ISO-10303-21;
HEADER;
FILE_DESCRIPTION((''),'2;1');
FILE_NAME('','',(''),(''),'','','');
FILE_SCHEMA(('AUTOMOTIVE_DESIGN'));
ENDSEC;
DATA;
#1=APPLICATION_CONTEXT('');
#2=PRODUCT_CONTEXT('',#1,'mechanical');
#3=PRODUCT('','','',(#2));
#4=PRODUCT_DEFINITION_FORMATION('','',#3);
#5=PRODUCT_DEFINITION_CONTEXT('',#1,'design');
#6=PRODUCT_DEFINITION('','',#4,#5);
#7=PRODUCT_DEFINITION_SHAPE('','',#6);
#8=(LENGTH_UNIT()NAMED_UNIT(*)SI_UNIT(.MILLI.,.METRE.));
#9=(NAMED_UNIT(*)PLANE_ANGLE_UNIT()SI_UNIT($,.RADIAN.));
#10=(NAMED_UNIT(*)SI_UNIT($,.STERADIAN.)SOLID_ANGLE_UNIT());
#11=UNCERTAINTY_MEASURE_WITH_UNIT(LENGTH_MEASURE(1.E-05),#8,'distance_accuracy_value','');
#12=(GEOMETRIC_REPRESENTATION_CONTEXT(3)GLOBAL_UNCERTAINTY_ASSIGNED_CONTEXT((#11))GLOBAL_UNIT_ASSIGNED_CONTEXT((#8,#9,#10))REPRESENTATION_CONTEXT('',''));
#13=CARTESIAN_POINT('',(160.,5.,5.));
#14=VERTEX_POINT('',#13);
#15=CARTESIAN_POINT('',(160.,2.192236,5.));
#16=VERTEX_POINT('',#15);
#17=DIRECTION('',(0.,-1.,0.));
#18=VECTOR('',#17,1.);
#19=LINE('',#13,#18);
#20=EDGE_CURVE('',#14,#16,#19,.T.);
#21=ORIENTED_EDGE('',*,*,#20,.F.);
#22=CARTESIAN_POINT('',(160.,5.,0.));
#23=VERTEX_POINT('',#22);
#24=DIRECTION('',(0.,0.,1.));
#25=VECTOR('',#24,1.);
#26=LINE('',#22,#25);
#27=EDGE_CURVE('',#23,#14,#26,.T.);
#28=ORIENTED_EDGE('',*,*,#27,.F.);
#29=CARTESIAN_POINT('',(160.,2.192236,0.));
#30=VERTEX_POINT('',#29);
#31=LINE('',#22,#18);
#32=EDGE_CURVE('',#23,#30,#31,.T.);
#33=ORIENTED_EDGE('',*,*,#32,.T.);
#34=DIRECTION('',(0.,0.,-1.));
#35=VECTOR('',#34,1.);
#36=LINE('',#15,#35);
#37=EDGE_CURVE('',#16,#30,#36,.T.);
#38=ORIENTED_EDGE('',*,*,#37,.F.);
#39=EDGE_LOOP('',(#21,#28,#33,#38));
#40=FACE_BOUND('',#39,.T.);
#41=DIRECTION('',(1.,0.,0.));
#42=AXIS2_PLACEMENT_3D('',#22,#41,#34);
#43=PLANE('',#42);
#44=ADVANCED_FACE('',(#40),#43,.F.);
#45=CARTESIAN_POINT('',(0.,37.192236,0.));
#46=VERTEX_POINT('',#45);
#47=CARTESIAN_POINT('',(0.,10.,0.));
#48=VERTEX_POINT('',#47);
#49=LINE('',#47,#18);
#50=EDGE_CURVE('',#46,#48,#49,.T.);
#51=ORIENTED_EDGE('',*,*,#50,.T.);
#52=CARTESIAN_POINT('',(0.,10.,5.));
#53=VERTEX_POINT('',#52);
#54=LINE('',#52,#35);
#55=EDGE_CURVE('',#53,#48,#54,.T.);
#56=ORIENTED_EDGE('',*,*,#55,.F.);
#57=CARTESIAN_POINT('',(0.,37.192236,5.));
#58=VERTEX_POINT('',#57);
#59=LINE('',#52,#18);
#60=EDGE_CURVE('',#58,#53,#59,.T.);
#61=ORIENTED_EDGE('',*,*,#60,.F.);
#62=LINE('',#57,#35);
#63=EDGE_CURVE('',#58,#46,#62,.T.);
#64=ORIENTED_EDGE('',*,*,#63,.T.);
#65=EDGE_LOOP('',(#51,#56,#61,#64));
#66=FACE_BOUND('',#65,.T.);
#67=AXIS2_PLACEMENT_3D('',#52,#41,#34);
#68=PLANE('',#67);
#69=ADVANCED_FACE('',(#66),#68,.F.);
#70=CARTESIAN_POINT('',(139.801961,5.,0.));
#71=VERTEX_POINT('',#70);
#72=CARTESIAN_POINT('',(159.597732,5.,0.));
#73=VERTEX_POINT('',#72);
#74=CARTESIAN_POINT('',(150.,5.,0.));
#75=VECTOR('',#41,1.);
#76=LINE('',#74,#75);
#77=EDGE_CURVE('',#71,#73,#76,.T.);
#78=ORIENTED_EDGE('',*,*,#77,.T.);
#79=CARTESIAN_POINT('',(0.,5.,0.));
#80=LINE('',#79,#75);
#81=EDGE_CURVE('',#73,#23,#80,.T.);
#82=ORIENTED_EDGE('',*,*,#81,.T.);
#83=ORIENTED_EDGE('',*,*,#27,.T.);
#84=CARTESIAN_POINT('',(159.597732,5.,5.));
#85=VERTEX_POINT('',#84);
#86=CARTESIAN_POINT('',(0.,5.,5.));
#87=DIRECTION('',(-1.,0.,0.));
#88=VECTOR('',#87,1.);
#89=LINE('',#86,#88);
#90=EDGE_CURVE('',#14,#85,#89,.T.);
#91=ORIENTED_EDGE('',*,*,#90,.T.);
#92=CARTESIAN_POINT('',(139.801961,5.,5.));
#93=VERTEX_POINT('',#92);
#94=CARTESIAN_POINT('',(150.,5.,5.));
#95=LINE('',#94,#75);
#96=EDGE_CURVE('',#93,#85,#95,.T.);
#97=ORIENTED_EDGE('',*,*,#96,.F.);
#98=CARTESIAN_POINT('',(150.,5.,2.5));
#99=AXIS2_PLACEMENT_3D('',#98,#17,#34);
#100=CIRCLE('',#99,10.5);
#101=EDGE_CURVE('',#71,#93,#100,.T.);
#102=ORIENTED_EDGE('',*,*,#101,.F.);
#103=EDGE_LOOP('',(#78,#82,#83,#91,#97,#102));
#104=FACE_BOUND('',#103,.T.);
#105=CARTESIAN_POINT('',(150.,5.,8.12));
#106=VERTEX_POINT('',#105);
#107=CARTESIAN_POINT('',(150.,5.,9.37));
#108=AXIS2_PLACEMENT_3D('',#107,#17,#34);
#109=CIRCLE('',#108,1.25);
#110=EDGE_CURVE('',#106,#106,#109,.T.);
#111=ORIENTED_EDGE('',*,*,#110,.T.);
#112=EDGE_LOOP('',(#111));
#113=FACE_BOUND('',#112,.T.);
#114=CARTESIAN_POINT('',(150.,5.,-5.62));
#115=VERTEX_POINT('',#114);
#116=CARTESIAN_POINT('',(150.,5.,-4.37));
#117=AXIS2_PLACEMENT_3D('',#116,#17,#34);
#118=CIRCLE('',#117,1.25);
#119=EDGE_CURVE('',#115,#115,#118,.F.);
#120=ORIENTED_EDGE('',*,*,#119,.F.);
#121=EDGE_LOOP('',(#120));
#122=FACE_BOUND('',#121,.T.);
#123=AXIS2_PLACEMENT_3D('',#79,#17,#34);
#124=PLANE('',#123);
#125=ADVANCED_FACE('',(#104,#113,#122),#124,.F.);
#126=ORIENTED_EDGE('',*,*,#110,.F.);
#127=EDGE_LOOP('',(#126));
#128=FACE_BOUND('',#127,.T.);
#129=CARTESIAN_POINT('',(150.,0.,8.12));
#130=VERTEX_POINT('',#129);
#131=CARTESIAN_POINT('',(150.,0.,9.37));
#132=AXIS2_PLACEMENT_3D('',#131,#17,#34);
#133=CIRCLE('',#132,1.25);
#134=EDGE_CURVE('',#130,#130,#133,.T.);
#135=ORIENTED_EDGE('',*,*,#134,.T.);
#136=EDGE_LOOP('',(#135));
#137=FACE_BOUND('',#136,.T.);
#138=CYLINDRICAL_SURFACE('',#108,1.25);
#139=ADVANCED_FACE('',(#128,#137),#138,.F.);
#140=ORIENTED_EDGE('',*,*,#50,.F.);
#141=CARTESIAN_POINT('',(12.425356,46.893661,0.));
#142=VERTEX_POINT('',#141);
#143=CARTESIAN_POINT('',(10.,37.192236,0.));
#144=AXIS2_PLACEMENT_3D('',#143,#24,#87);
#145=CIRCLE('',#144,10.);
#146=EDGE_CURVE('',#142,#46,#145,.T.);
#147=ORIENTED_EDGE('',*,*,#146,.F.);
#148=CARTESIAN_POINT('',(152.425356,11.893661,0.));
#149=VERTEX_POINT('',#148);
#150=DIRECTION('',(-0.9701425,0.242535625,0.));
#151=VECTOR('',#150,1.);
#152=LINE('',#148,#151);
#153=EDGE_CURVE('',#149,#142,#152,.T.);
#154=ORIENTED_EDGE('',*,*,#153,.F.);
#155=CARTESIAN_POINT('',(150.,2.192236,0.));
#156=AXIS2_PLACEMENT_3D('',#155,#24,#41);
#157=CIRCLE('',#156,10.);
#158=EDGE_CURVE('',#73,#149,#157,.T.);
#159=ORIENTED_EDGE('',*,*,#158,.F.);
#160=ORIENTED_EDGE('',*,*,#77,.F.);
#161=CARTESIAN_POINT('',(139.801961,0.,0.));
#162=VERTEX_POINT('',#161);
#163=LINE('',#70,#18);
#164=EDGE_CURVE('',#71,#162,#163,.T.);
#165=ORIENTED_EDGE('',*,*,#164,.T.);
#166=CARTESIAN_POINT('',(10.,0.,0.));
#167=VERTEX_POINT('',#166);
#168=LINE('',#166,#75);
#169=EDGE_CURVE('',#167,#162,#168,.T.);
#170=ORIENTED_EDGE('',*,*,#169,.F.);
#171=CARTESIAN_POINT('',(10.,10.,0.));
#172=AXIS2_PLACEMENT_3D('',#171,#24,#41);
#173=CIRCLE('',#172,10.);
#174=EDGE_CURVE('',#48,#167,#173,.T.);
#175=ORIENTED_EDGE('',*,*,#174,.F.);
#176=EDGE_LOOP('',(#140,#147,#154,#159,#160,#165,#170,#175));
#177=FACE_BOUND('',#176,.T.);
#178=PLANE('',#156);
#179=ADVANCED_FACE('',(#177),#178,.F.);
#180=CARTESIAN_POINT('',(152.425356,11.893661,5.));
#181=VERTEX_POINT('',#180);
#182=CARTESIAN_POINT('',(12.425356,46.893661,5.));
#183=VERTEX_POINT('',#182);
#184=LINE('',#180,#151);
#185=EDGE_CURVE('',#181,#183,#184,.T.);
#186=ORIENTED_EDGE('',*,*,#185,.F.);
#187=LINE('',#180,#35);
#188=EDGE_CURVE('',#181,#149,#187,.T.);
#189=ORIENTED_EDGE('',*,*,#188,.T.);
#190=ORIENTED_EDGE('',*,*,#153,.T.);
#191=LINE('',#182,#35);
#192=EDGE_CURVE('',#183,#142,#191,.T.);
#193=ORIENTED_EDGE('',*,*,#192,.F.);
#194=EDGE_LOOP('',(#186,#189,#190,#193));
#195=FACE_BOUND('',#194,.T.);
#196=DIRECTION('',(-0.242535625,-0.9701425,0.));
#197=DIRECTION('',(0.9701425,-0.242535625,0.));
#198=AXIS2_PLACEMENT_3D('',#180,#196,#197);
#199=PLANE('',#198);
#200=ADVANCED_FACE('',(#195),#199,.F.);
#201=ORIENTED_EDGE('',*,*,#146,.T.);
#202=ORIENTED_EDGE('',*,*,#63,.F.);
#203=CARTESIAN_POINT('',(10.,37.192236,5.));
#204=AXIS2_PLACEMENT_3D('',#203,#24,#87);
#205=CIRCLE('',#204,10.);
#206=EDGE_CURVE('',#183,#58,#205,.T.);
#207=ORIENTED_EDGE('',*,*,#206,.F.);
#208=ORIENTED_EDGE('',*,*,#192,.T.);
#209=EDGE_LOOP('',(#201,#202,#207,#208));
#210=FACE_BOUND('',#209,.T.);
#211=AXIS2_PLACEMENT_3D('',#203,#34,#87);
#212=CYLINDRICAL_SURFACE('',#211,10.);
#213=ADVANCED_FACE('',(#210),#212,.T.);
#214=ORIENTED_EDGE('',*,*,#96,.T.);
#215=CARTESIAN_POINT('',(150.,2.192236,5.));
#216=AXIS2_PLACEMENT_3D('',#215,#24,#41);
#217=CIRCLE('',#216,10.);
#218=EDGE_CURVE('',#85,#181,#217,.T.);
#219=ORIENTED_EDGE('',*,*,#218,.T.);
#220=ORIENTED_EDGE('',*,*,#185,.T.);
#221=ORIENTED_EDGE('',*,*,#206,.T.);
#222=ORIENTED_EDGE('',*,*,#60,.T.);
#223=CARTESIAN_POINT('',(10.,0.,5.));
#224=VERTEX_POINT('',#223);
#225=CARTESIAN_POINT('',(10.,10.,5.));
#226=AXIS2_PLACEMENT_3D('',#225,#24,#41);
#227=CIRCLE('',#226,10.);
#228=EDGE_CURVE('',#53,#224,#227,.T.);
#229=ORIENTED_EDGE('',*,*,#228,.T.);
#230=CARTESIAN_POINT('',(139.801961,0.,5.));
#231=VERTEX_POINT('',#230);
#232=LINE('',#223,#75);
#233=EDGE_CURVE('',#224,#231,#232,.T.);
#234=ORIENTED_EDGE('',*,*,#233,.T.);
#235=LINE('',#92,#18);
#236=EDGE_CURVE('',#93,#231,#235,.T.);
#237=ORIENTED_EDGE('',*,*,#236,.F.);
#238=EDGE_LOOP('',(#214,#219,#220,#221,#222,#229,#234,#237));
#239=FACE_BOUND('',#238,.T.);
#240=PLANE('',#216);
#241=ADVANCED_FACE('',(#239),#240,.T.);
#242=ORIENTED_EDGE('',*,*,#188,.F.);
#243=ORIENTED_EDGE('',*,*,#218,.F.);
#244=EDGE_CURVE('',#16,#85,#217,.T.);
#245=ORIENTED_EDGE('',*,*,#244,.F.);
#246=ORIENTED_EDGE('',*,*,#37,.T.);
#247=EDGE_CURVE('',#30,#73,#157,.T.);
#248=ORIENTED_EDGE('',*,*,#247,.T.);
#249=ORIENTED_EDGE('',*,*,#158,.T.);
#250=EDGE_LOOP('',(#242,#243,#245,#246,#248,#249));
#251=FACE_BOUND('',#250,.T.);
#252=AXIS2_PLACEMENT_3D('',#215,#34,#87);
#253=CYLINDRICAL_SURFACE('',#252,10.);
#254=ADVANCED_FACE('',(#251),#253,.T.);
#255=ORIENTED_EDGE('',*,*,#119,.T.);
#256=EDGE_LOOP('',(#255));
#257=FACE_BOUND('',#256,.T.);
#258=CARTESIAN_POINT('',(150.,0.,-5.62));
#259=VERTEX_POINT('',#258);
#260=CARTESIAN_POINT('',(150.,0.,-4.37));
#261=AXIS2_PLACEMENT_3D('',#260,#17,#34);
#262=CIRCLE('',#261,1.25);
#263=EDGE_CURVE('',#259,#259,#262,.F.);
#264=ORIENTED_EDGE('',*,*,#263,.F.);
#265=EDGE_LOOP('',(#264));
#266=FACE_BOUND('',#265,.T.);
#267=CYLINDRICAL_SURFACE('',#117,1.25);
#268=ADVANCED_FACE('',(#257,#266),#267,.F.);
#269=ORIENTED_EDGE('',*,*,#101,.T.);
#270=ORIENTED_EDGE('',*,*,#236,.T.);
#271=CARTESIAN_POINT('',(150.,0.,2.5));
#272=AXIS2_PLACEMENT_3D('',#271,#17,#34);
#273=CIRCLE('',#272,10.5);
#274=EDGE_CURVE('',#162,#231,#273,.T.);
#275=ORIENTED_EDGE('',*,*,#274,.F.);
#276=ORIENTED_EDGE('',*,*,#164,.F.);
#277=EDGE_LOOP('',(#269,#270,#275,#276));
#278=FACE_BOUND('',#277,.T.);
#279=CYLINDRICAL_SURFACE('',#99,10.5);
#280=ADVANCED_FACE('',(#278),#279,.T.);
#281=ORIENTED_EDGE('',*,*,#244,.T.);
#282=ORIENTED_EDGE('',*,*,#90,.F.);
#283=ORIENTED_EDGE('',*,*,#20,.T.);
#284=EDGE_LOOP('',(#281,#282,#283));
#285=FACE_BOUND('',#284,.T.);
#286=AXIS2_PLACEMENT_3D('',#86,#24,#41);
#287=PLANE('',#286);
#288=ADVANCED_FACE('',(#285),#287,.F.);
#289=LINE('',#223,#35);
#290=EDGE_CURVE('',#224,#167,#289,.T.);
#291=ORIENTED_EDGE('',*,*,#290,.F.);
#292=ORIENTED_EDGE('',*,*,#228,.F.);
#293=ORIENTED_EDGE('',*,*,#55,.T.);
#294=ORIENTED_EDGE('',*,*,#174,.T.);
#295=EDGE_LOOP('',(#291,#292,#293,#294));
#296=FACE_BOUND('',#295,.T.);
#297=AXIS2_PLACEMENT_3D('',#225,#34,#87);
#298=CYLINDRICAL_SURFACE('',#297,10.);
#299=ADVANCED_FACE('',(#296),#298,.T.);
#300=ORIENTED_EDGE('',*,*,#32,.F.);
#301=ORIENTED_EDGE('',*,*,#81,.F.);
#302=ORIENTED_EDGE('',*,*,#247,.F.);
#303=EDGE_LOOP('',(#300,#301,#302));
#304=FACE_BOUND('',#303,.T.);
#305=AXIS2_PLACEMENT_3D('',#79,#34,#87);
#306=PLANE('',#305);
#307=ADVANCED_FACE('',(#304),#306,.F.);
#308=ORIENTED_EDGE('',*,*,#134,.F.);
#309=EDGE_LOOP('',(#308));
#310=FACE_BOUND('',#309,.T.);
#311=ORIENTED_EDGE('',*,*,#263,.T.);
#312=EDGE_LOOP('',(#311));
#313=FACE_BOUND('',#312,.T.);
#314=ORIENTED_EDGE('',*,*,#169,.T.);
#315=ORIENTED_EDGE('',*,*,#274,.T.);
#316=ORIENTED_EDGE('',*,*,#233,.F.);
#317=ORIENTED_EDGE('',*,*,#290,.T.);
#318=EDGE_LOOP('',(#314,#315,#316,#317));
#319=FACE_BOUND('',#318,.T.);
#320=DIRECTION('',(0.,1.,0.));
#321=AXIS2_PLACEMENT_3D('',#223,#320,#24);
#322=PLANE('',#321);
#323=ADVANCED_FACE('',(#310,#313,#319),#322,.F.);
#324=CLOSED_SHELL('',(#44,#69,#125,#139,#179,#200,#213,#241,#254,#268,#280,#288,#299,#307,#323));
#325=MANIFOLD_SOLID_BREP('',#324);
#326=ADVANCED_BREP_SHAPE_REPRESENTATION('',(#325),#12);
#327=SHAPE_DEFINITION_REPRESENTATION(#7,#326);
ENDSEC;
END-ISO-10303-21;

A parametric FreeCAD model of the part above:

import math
import FreeCAD as App
import Part
import Sketcher

doc = App.newDocument("Part")
body = doc.addObject("PartDesign::Body", "Body")

sketch1 = body.newObject("Sketcher::SketchObject", "Sketch")
sketch1.AttachmentSupport = (doc.getObject("XY_Plane"), [""])
sketch1.MapMode = "FlatFace"
sketch1.addGeometry([
    Part.LineSegment(App.Vector(0, 37.2, 0), App.Vector(0, 10, 0)),
    Part.ArcOfCircle(Part.Circle(App.Vector(10, 10, 0), App.Vector(0, 0, 1), 10), math.radians(180), math.radians(270)),
    Part.LineSegment(App.Vector(10, 0, 0), App.Vector(160, 0, 0)),
    Part.LineSegment(App.Vector(160, 0, 0), App.Vector(160, 2.2, 0)),
    Part.ArcOfCircle(Part.Circle(App.Vector(150, 2.2, 0), App.Vector(0, 0, 1), 10), math.radians(0), math.radians(76)),
    Part.LineSegment(App.Vector(152.4, 11.9, 0), App.Vector(12.4, 46.9, 0)),
    Part.ArcOfCircle(Part.Circle(App.Vector(10, 37.2, 0), App.Vector(0, 0, 1), 10), math.radians(76), math.radians(180)),
], False)
sketch1.addConstraint([
    Sketcher.Constraint("Tangent", 0, 2, 1, 1),
    Sketcher.Constraint("Tangent", 1, 2, 2, 1),
    Sketcher.Constraint("Coincident", 2, 2, 3, 1),
    Sketcher.Constraint("Tangent", 3, 2, 4, 1),
    Sketcher.Constraint("Tangent", 4, 2, 5, 1),
    Sketcher.Constraint("Tangent", 5, 2, 6, 1),
    Sketcher.Constraint("Tangent", 6, 2, 0, 1),
    Sketcher.Constraint("Vertical", 0),
    Sketcher.Constraint("Horizontal", 2),
    Sketcher.Constraint("Vertical", 3),
    Sketcher.Constraint("Equal", 1, 4),
    Sketcher.Constraint("Equal", 4, 6),
    Sketcher.Constraint("PointOnObject", 0, 2, -2),
    Sketcher.Constraint("PointOnObject", 1, 2, -1),
    Sketcher.Constraint("Radius", 1, 10.0),
    Sketcher.Constraint("DistanceX", 2, 1, 2, 2, 150.0),
    Sketcher.Constraint("DistanceY", 4, 3, 6, 3, 35.0),
    Sketcher.Constraint("DistanceY", 0, 2, 0, 1, 27.192236),
])
pad1 = body.newObject("PartDesign::Pad", "Pad")
pad1.Profile = sketch1
pad1.Length = 5

sketch2 = body.newObject("Sketcher::SketchObject", "Sketch001")
sketch2.AttachmentSupport = (doc.getObject("XZ_Plane"), [""])
sketch2.MapMode = "FlatFace"
sketch2.addGeometry([
    Part.ArcOfCircle(Part.Circle(App.Vector(150, 2.5, 0), App.Vector(0, 0, 1), 10.5), math.radians(-166), math.radians(0)),
    Part.ArcOfCircle(Part.Circle(App.Vector(150, 2.5, 0), App.Vector(0, 0, 1), 10.5), math.radians(0), math.radians(166)),
    Part.LineSegment(App.Vector(139.8, 5, 0), App.Vector(160, 5, 0)),
    Part.LineSegment(App.Vector(160, 5, 0), App.Vector(160, 0, 0)),
    Part.LineSegment(App.Vector(160, 0, 0), App.Vector(139.8, 0, 0)),
    Part.Circle(App.Vector(150, -4.4, 0), App.Vector(0, 0, 1), 1.2),
    Part.Circle(App.Vector(150, 9.4, 0), App.Vector(0, 0, 1), 1.2),
], False)
sketch2.addConstraint([
    Sketcher.Constraint("Tangent", 0, 2, 1, 1),
    Sketcher.Constraint("Coincident", 1, 2, 2, 1),
    Sketcher.Constraint("Coincident", 2, 2, 3, 1),
    Sketcher.Constraint("Coincident", 3, 2, 4, 1),
    Sketcher.Constraint("Coincident", 4, 2, 0, 1),
    Sketcher.Constraint("Horizontal", 2),
    Sketcher.Constraint("Vertical", 3),
    Sketcher.Constraint("Horizontal", 4),
    Sketcher.Constraint("Equal", 0, 1),
    Sketcher.Constraint("Equal", 5, 6),
    Sketcher.Constraint("PointOnObject", 3, 2, -1),
    Sketcher.Constraint("Horizontal", 1, 3, 0, 2),
    Sketcher.Constraint("Vertical", 1, 3, 5, 3),
    Sketcher.Constraint("Vertical", 5, 3, 6, 3),
    Sketcher.Constraint("Vertical", 1, 2, 4, 2),
    Sketcher.Constraint("Diameter", 5, 2.5),
    Sketcher.Constraint("Radius", 0, 10.5),
    Sketcher.Constraint("DistanceY", 3, 2, 3, 1, 5.0),
    Sketcher.Constraint("DistanceX", -1, 1, 0, 3, 150.0),
    Sketcher.Constraint("DistanceX", -1, 1, 2, 2, 160.0),
    Sketcher.Constraint("DistanceY", 5, 3, -1, 1, 4.37),
    Sketcher.Constraint("DistanceY", -1, 1, 6, 3, 9.37),
])
pad2 = body.newObject("PartDesign::Pad", "Pad001")
pad2.Profile = sketch2
pad2.Length = 5
pad2.Reversed = True

doc.recompute()
